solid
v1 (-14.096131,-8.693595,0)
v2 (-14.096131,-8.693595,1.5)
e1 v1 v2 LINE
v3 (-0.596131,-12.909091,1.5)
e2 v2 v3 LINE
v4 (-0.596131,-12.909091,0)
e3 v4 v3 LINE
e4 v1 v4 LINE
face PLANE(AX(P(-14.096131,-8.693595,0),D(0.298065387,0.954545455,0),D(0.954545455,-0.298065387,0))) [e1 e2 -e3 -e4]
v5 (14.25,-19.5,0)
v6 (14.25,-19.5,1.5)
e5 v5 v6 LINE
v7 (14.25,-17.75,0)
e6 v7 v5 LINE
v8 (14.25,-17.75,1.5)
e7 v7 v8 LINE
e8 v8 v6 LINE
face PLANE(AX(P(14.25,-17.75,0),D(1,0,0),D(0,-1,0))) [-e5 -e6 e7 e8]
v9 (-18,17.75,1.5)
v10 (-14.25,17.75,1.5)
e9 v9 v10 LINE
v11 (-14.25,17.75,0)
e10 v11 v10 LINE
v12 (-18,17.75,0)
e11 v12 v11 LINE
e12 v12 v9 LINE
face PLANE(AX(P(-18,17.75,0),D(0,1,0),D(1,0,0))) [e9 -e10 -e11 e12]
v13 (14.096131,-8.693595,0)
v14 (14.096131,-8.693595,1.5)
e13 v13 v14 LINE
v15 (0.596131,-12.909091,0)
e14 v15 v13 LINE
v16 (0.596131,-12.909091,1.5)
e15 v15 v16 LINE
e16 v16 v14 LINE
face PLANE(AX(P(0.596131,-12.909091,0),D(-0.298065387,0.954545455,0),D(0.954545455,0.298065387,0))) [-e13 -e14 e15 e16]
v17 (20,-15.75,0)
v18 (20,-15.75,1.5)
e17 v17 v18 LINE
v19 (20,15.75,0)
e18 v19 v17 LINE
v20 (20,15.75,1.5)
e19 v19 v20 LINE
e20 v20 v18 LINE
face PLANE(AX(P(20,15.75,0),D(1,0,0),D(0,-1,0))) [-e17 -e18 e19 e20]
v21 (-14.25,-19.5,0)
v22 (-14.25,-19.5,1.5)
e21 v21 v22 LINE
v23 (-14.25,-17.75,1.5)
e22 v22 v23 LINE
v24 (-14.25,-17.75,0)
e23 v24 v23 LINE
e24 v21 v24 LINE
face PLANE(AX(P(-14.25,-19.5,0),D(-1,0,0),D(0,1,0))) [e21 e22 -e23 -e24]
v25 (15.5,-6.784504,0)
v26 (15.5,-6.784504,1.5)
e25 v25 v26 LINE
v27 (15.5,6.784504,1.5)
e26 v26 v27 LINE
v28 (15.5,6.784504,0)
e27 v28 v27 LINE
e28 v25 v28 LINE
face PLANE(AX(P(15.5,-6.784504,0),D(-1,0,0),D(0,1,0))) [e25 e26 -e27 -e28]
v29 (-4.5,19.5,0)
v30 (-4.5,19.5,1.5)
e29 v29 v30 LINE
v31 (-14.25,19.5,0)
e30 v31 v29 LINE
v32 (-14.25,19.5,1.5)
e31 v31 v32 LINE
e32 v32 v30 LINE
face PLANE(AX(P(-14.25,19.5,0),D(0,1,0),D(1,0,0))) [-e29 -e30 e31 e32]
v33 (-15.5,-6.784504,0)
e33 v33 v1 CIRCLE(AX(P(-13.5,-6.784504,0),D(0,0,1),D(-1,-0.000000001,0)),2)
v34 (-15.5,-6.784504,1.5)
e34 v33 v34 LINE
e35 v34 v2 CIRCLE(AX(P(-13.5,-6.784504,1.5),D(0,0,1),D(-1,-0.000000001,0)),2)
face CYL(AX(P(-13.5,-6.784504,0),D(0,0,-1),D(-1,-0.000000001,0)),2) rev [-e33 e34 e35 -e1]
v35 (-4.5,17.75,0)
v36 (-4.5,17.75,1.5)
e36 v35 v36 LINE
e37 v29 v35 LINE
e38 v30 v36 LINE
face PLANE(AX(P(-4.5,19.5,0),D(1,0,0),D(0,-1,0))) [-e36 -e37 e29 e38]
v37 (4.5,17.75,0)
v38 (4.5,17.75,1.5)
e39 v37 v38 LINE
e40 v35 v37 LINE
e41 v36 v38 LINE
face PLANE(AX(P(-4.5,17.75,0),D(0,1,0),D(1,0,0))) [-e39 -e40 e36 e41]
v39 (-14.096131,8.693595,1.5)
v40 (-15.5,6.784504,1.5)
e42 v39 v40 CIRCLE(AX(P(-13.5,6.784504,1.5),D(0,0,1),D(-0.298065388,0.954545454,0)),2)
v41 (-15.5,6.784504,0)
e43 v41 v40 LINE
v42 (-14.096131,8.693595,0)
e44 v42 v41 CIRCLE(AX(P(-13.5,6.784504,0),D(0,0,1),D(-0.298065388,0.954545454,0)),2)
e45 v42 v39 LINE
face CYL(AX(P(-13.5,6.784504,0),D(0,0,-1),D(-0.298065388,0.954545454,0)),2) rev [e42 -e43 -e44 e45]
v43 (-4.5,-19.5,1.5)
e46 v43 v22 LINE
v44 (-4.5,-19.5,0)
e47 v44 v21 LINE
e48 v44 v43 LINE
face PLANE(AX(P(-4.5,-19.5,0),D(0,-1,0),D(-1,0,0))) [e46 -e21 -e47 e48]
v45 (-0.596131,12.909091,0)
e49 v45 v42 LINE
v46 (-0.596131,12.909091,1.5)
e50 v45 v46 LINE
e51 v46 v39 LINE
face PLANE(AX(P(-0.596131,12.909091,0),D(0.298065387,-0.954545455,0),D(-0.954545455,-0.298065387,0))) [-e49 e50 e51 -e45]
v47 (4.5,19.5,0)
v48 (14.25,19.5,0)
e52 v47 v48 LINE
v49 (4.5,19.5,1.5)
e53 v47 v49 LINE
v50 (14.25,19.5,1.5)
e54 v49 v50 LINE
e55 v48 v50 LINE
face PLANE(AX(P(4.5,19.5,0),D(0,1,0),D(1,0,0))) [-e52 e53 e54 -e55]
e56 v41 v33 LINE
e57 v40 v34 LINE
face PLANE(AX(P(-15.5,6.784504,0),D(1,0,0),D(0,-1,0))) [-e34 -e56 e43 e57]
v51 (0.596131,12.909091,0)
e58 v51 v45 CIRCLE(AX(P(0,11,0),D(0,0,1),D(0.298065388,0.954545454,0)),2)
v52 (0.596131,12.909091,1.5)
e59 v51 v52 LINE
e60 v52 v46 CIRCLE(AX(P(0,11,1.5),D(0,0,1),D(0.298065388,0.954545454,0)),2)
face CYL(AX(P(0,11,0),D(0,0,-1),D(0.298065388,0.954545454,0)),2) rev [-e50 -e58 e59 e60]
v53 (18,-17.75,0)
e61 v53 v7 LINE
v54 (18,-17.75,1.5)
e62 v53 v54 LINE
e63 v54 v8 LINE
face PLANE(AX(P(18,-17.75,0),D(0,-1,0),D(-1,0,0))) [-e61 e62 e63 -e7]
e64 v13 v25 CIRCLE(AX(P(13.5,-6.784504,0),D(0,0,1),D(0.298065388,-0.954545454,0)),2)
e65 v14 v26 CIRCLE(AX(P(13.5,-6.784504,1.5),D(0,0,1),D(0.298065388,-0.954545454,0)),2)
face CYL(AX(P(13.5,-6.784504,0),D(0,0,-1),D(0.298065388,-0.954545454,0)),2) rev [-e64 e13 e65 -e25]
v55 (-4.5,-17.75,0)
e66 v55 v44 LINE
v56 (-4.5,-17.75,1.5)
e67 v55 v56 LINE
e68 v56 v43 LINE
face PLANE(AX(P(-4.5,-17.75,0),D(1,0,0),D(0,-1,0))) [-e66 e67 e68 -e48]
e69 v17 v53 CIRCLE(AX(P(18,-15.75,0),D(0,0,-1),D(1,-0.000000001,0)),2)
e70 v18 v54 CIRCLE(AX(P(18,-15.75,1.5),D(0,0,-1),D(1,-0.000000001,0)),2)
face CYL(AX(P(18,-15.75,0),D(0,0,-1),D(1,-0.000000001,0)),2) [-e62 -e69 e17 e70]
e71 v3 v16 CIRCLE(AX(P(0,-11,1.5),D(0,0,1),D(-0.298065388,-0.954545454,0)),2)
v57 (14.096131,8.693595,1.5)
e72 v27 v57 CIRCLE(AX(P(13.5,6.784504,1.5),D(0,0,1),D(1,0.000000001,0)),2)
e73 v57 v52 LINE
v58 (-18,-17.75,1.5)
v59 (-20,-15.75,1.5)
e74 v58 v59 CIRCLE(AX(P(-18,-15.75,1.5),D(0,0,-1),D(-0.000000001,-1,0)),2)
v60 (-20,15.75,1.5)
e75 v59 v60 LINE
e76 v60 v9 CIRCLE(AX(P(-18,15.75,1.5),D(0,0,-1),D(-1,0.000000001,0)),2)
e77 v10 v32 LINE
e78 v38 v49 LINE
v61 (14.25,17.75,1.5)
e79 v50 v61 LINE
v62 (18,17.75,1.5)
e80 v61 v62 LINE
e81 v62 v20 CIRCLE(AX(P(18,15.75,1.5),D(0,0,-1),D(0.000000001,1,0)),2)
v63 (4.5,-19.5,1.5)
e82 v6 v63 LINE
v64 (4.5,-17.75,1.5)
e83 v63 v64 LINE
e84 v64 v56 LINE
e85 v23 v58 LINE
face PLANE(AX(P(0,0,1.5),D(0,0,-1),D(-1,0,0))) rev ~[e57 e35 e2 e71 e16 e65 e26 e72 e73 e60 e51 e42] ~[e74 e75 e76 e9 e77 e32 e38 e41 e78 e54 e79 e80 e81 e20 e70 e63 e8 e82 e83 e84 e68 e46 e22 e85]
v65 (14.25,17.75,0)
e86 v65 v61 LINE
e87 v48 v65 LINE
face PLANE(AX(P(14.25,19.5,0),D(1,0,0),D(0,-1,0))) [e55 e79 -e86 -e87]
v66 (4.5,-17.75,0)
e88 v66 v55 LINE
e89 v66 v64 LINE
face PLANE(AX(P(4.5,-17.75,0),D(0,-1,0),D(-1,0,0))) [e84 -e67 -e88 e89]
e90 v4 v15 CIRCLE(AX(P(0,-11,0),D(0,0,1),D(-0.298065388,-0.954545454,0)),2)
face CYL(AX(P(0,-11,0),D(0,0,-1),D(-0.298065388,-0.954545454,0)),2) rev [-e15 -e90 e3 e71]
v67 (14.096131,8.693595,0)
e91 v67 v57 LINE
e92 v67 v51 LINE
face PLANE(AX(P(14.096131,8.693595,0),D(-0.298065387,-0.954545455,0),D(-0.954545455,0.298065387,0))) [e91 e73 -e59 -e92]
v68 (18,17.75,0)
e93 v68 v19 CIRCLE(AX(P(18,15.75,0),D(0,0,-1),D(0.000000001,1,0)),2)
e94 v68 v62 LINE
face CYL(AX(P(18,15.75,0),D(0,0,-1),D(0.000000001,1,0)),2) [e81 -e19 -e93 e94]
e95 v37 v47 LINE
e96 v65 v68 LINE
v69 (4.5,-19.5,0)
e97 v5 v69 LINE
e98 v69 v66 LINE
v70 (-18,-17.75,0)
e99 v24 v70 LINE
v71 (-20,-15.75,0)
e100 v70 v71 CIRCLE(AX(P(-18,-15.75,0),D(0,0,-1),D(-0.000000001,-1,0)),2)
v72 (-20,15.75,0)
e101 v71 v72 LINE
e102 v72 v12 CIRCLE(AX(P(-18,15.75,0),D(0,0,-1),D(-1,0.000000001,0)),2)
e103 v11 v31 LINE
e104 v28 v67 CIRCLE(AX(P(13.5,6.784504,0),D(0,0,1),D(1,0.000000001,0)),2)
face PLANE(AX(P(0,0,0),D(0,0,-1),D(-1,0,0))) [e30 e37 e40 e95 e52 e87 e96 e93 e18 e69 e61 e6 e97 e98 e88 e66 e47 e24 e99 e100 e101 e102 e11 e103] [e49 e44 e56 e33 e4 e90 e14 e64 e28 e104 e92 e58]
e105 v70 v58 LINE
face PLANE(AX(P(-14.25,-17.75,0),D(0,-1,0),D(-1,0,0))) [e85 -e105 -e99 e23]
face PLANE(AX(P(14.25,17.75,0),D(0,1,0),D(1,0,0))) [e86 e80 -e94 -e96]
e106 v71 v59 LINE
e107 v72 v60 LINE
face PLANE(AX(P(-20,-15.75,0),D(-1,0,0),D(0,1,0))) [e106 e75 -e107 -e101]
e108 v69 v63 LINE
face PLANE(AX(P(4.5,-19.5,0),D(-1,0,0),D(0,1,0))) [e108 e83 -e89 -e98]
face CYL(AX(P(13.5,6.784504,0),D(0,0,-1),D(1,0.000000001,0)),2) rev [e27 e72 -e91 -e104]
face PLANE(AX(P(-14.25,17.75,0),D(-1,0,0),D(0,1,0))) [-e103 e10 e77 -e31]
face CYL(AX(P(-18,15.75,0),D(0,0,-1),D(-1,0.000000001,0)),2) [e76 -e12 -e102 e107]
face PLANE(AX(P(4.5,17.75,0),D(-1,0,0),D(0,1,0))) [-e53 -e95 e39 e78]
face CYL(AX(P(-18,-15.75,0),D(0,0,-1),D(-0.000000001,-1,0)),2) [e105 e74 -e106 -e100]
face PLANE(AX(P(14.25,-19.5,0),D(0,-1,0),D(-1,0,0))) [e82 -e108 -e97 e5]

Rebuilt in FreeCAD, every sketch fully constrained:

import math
import FreeCAD as App
import Part
import Sketcher

V = App.Vector
Q = App.Units.Quantity

doc = App.newDocument("Part")
body = doc.addObject("PartDesign::Body", "Body")

sketch1 = body.newObject("Sketcher::SketchObject", "Sketch")
sketch1.AttachmentSupport = (doc.getObject("XY_Plane"), [""])
sketch1.MapMode = "FlatFace"
sketch1.addGeometry([
    Part.LineSegment(V(-18, 17.8, 0), V(-14.2, 17.8, 0)),
    Part.LineSegment(V(-14.2, 17.8, 0), V(-14.2, 19.5, 0)),
    Part.LineSegment(V(-14.2, 19.5, 0), V(-4.5, 19.5, 0)),
    Part.LineSegment(V(-4.5, 19.5, 0), V(-4.5, 17.8, 0)),
    Part.LineSegment(V(-4.5, 17.8, 0), V(4.5, 17.8, 0)),
    Part.LineSegment(V(4.5, 17.8, 0), V(4.5, 19.5, 0)),
    Part.LineSegment(V(4.5, 19.5, 0), V(14.2, 19.5, 0)),
    Part.LineSegment(V(14.2, 19.5, 0), V(14.2, 17.8, 0)),
    Part.LineSegment(V(14.2, 17.8, 0), V(18, 17.8, 0)),
    Part.ArcOfCircle(Part.Circle(V(18, 15.7, 0), V(0, 0, 1), 2), math.radians(0), math.radians(90)),
    Part.LineSegment(V(20, 15.8, 0), V(20, -15.8, 0)),
    Part.ArcOfCircle(Part.Circle(V(18, -15.7, 0), V(0, 0, 1), 2), math.radians(-90), math.radians(0)),
    Part.LineSegment(V(18, -17.8, 0), V(14.2, -17.8, 0)),
    Part.LineSegment(V(14.2, -17.8, 0), V(14.2, -19.5, 0)),
    Part.LineSegment(V(14.2, -19.5, 0), V(4.5, -19.5, 0)),
    Part.LineSegment(V(4.5, -19.5, 0), V(4.5, -17.8, 0)),
    Part.LineSegment(V(4.5, -17.8, 0), V(-4.5, -17.8, 0)),
    Part.LineSegment(V(-4.5, -17.8, 0), V(-4.5, -19.5, 0)),
    Part.LineSegment(V(-4.5, -19.5, 0), V(-14.2, -19.5, 0)),
    Part.LineSegment(V(-14.2, -19.5, 0), V(-14.2, -17.8, 0)),
    Part.LineSegment(V(-14.2, -17.8, 0), V(-18, -17.8, 0)),
    Part.ArcOfCircle(Part.Circle(V(-18, -15.7, 0), V(0, 0, 1), 2), math.radians(-180), math.radians(-90)),
    Part.LineSegment(V(-20, -15.8, 0), V(-20, 15.8, 0)),
    Part.ArcOfCircle(Part.Circle(V(-18, 15.7, 0), V(0, 0, 1), 2), math.radians(90), math.radians(180)),
    Part.ArcOfCircle(Part.Circle(V(0, -11, 0), V(0, 0, 1), 2), math.radians(-107), math.radians(-73)),
    Part.LineSegment(V(0.6, -12.9, 0), V(14.1, -8.7, 0)),
    Part.ArcOfCircle(Part.Circle(V(13.5, -6.8, 0), V(0, 0, 1), 2), math.radians(-73), math.radians(0)),
    Part.LineSegment(V(15.5, -6.8, 0), V(15.5, 6.8, 0)),
    Part.ArcOfCircle(Part.Circle(V(13.5, 6.8, 0), V(0, 0, 1), 2), math.radians(0), math.radians(73)),
    Part.LineSegment(V(14.1, 8.7, 0), V(0.6, 12.9, 0)),
    Part.ArcOfCircle(Part.Circle(V(0, 11, 0), V(0, 0, 1), 2), math.radians(73), math.radians(107)),
    Part.LineSegment(V(-0.6, 12.9, 0), V(-14.1, 8.7, 0)),
    Part.ArcOfCircle(Part.Circle(V(-13.5, 6.8, 0), V(0, 0, 1), 2), math.radians(107), math.radians(180)),
    Part.LineSegment(V(-15.5, 6.8, 0), V(-15.5, -6.8, 0)),
    Part.ArcOfCircle(Part.Circle(V(-13.5, -6.8, 0), V(0, 0, 1), 2), math.radians(-180), math.radians(-107)),
    Part.LineSegment(V(-14.1, -8.7, 0), V(-0.6, -12.9, 0)),
], False)
sketch1.addConstraint([
    Sketcher.Constraint("Coincident", 0, 2, 1, 1),
    Sketcher.Constraint("Coincident", 1, 2, 2, 1),
    Sketcher.Constraint("Coincident", 2, 2, 3, 1),
    Sketcher.Constraint("Coincident", 3, 2, 4, 1),
    Sketcher.Constraint("Coincident", 4, 2, 5, 1),
    Sketcher.Constraint("Coincident", 5, 2, 6, 1),
    Sketcher.Constraint("Coincident", 6, 2, 7, 1),
    Sketcher.Constraint("Coincident", 7, 2, 8, 1),
    Sketcher.Constraint("Tangent", 8, 2, 9, 2),
    Sketcher.Constraint("Tangent", 9, 1, 10, 1),
    Sketcher.Constraint("Tangent", 10, 2, 11, 2),
    Sketcher.Constraint("Tangent", 11, 1, 12, 1),
    Sketcher.Constraint("Coincident", 12, 2, 13, 1),
    Sketcher.Constraint("Coincident", 13, 2, 14, 1),
    Sketcher.Constraint("Coincident", 14, 2, 15, 1),
    Sketcher.Constraint("Coincident", 15, 2, 16, 1),
    Sketcher.Constraint("Coincident", 16, 2, 17, 1),
    Sketcher.Constraint("Coincident", 17, 2, 18, 1),
    Sketcher.Constraint("Coincident", 18, 2, 19, 1),
    Sketcher.Constraint("Coincident", 19, 2, 20, 1),
    Sketcher.Constraint("Tangent", 20, 2, 21, 2),
    Sketcher.Constraint("Tangent", 21, 1, 22, 1),
    Sketcher.Constraint("Tangent", 22, 2, 23, 2),
    Sketcher.Constraint("Tangent", 23, 1, 0, 1),
    Sketcher.Constraint("Tangent", 24, 2, 25, 1),
    Sketcher.Constraint("Tangent", 25, 2, 26, 1),
    Sketcher.Constraint("Tangent", 26, 2, 27, 1),
    Sketcher.Constraint("Tangent", 27, 2, 28, 1),
    Sketcher.Constraint("Tangent", 28, 2, 29, 1),
    Sketcher.Constraint("Tangent", 29, 2, 30, 1),
    Sketcher.Constraint("Tangent", 30, 2, 31, 1),
    Sketcher.Constraint("Tangent", 31, 2, 32, 1),
    Sketcher.Constraint("Tangent", 32, 2, 33, 1),
    Sketcher.Constraint("Tangent", 33, 2, 34, 1),
    Sketcher.Constraint("Tangent", 34, 2, 35, 1),
    Sketcher.Constraint("Tangent", 35, 2, 24, 1),
    Sketcher.Constraint("Horizontal", 0),
    Sketcher.Constraint("Vertical", 1),
    Sketcher.Constraint("Horizontal", 2),
    Sketcher.Constraint("Vertical", 3),
    Sketcher.Constraint("Horizontal", 4),
    Sketcher.Constraint("Vertical", 5),
    Sketcher.Constraint("Horizontal", 6),
    Sketcher.Constraint("Vertical", 7),
    Sketcher.Constraint("Horizontal", 8),
    Sketcher.Constraint("Vertical", 10),
    Sketcher.Constraint("Horizontal", 12),
    Sketcher.Constraint("Vertical", 13),
    Sketcher.Constraint("Horizontal", 14),
    Sketcher.Constraint("Vertical", 15),
    Sketcher.Constraint("Horizontal", 16),
    Sketcher.Constraint("Vertical", 17),
    Sketcher.Constraint("Horizontal", 18),
    Sketcher.Constraint("Vertical", 19),
    Sketcher.Constraint("Horizontal", 20),
    Sketcher.Constraint("Vertical", 22),
    Sketcher.Constraint("Vertical", 27),
    Sketcher.Constraint("Vertical", 33),
    Sketcher.Constraint("Equal", 9, 11),
    Sketcher.Constraint("Equal", 11, 21),
    Sketcher.Constraint("Equal", 21, 23),
    Sketcher.Constraint("Equal", 23, 24),
    Sketcher.Constraint("Equal", 24, 26),
    Sketcher.Constraint("Equal", 26, 28),
    Sketcher.Constraint("Equal", 28, 30),
    Sketcher.Constraint("Equal", 30, 32),
    Sketcher.Constraint("Equal", 32, 34),
    Sketcher.Constraint("Symmetric", 9, 3, 21, 3, -1, 1),
    Sketcher.Constraint("Symmetric", 24, 3, 30, 3, -1, 1),
    Sketcher.Constraint("Symmetric", 26, 3, 32, 3, -1, 1),
    Sketcher.Constraint("Symmetric", 0, 2, 12, 2, -1, 1),
    Sketcher.Constraint("Symmetric", 2, 2, 14, 2, -1, 1),
    Sketcher.Constraint("Symmetric", 4, 2, 16, 2, -1, 1),
    Sketcher.Constraint("Symmetric", 6, 2, 18, 2, -1, 1),
    Sketcher.Constraint("Symmetric", 2, 2, 5, 2, -2),
    Sketcher.Constraint("Symmetric", 0, 2, 7, 2, -2),
    Sketcher.Constraint("Symmetric", 29, 2, 30, 2, -2),
    Sketcher.Constraint("Parallel", 29, 35),
    Sketcher.Constraint("Horizontal", 0, 2, 3, 2),
    Sketcher.Constraint("Radius", 9, Q("2 mm")),
    Sketcher.Constraint("DistanceX", 4, 1, 4, 2, Q("9 mm")),
    Sketcher.Constraint("DistanceY", 10, 2, 10, 1, Q("31.5 mm")),
    Sketcher.Constraint("DistanceX", -1, 1, 9, 3, Q("18 mm")),
    Sketcher.Constraint("DistanceY", 24, 3, -1, 1, Q("11 mm")),
    Sketcher.Constraint("DistanceX", 32, 3, 28, 3, Q("27 mm")),
    Sketcher.Constraint("DistanceX", 0, 1, 0, 2, Q("3.75 mm")),
    Sketcher.Constraint("DistanceY", 1, 1, 1, 2, Q("1.75 mm")),
    Sketcher.Constraint("DistanceY", 27, 1, 27, 2, Q("13.569008 mm")),
])
pad1 = body.newObject("PartDesign::Pad", "Pad")
pad1.Profile = sketch1
pad1.Length = 1.5

doc.recompute()
